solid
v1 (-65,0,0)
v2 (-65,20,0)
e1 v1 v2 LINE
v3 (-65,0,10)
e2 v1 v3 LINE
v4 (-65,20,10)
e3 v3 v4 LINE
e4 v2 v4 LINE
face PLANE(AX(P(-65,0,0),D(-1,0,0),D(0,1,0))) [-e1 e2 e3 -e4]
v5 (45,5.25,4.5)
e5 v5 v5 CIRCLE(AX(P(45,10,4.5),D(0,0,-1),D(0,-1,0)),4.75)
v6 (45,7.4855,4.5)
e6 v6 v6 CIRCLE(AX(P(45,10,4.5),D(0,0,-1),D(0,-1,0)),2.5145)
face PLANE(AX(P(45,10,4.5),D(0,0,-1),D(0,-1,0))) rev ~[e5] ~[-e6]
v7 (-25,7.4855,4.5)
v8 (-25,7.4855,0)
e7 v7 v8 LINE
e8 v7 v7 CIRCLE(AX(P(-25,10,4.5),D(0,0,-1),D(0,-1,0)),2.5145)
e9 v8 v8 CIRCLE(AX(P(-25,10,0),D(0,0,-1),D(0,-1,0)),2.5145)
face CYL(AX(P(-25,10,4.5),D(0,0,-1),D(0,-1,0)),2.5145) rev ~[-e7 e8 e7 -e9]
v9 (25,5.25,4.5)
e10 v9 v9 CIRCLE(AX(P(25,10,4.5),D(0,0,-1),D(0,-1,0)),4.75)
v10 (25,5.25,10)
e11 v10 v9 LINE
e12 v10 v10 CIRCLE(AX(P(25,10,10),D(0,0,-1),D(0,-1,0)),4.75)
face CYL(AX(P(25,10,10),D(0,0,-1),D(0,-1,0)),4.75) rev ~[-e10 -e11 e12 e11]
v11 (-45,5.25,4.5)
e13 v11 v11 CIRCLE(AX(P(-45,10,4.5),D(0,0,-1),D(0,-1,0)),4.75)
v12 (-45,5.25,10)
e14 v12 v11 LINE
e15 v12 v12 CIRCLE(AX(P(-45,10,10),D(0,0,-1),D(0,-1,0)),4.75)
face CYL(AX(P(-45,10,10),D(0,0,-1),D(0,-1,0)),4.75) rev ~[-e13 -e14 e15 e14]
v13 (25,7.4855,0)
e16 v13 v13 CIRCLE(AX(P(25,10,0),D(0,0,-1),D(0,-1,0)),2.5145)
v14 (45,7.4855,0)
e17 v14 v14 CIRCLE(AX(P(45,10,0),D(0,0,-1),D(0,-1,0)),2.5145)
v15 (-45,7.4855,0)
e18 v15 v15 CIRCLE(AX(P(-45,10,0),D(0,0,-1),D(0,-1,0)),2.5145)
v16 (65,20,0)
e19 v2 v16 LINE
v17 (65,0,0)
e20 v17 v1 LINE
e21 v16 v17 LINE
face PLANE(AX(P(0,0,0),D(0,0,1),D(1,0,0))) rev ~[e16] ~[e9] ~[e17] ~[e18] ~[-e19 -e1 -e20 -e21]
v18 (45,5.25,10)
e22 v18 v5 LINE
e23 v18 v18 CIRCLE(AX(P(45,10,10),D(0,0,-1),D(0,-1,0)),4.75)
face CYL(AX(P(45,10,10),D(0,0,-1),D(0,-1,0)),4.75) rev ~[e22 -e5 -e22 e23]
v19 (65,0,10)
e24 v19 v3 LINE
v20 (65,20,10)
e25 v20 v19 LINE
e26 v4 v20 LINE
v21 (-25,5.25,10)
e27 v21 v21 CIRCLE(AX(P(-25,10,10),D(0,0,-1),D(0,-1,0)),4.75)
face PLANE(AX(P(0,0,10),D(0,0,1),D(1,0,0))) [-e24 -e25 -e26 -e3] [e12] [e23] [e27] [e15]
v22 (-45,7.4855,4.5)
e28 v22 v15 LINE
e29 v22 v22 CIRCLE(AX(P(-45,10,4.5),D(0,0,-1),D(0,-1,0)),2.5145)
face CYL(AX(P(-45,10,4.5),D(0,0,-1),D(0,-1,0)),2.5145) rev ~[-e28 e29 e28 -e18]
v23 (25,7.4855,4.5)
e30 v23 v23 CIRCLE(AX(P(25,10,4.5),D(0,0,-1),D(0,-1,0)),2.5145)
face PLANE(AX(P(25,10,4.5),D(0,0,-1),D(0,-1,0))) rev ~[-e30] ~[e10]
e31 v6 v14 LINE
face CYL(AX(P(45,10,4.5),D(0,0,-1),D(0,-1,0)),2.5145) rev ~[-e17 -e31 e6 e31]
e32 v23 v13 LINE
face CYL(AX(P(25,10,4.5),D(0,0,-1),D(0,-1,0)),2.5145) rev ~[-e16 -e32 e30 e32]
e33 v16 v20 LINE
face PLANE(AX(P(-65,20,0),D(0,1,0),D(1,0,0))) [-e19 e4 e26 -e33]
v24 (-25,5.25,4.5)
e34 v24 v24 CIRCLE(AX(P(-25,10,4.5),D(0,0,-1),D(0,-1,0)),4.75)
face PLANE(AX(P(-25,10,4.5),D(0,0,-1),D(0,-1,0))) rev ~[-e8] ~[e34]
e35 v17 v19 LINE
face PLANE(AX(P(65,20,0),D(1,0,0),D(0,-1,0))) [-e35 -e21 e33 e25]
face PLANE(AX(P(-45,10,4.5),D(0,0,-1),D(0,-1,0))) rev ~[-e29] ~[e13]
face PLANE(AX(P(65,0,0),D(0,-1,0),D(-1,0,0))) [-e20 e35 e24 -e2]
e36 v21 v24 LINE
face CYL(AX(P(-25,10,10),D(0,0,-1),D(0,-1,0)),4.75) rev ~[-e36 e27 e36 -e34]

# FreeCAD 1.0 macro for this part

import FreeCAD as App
import Part
import Sketcher
from FreeCAD import Vector
Q = App.Units.Quantity

doc = App.newDocument("Part")
body = doc.addObject("PartDesign::Body", "Body")

sketch1 = doc.addObject("Sketcher::SketchObject", "Sketch")
body.addObject(sketch1)
sketch1.AttachmentSupport = (doc.XY_Plane, [""])
sketch1.MapMode = "FlatFace"
sketch1.addGeometry([
    Part.LineSegment(Vector(65, 20, 0), Vector(-65, 20, 0)),
    Part.LineSegment(Vector(-65, 20, 0), Vector(-65, 0, 0)),
    Part.LineSegment(Vector(-65, 0, 0), Vector(65, 0, 0)),
    Part.LineSegment(Vector(65, 0, 0), Vector(65, 20, 0)),
], False)
sketch1.addConstraint([
    Sketcher.Constraint("Coincident", 0, 2, 1, 1),
    Sketcher.Constraint("Coincident", 1, 2, 2, 1),
    Sketcher.Constraint("Coincident", 2, 2, 3, 1),
    Sketcher.Constraint("Coincident", 3, 2, 0, 1),
    Sketcher.Constraint("Horizontal", 0),
    Sketcher.Constraint("Vertical", 1),
    Sketcher.Constraint("Horizontal", 2),
    Sketcher.Constraint("Vertical", 3),
    Sketcher.Constraint("Symmetric", 1, 2, 2, 2, -1, 1),
    Sketcher.Constraint("DistanceX", 0, 2, 0, 1, Q("130 mm")),
    Sketcher.Constraint("DistanceY", 1, 2, 1, 1, Q("20 mm")),
])
pad1 = doc.addObject("PartDesign::Pad", "Pad")
body.addObject(pad1)
pad1.Profile = sketch1
pad1.Length = 10

sketch2 = doc.addObject("Sketcher::SketchObject", "Sketch001")
body.addObject(sketch2)
sketch2.AttachmentSupport = (doc.XY_Plane, [""])
sketch2.MapMode = "FlatFace"
sketch2.AttachmentOffset = App.Placement(Vector(0, 0, 10), App.Rotation())
sketch2.addGeometry([
    Part.Circle(Vector(-45, 10, 0), Vector(0, 0, 1), 2.5),
    Part.Circle(Vector(25, 10, 0), Vector(0, 0, 1), 2.5),
    Part.Circle(Vector(45, 10, 0), Vector(0, 0, 1), 2.5),
    Part.Circle(Vector(-25, 10, 0), Vector(0, 0, 1), 2.5),
], False)
sketch2.addConstraint([
    Sketcher.Constraint("Equal", 0, 1),
    Sketcher.Constraint("Equal", 1, 2),
    Sketcher.Constraint("Equal", 2, 3),
    Sketcher.Constraint("Symmetric", 0, 3, 2, 3, -2),
    Sketcher.Constraint("Symmetric", 1, 3, 3, 3, -2),
    Sketcher.Constraint("Horizontal", 0, 3, 1, 3),
    Sketcher.Constraint("Diameter", 0, Q("5.029 mm")),
    Sketcher.Constraint("DistanceX", 0, 3, -1, 1, Q("45 mm")),
    Sketcher.Constraint("DistanceY", -1, 1, 0, 3, Q("10 mm")),
    Sketcher.Constraint("DistanceX", -1, 1, 1, 3, Q("25 mm")),
])
doc.recompute()
hole = doc.addObject("PartDesign::Hole", "Hole")
body.addObject(hole)
hole.Profile = sketch2
hole.ThreadType = "None"
hole.Diameter = 5.029
hole.DepthType = "Dimension"
hole.Depth = 11
hole.DrillPoint = "Angled"
hole.DrillPointAngle = 118
hole.HoleCutType = "Counterbore"
hole.HoleCutDiameter = 9.5
hole.HoleCutDepth = 5.5

doc.recompute()
